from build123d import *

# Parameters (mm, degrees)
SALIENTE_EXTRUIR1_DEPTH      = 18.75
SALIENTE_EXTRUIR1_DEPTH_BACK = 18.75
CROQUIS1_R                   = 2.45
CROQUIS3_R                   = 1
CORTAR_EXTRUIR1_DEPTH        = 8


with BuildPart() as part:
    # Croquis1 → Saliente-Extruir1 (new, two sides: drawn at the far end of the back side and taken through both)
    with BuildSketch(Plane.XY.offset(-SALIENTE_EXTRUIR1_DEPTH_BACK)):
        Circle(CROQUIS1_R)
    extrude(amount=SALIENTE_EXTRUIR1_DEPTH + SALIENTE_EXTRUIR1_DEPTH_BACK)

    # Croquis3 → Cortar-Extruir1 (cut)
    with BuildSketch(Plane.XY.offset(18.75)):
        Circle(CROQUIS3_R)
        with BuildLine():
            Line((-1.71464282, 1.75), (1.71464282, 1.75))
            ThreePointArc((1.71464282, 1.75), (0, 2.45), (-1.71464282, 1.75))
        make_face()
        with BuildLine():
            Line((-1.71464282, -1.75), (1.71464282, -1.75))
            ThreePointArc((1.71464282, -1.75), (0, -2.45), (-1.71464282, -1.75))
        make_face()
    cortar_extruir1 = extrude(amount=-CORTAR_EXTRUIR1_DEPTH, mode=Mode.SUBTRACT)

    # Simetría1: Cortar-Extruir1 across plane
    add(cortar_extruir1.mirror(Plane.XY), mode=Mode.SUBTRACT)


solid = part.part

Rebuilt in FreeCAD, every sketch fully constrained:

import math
import FreeCAD as App
import Part
import Sketcher

V = App.Vector
Q = App.Units.Quantity

doc = App.newDocument("Part")
body = doc.addObject("PartDesign::Body", "Body")

# Sketch on XY plane
sketch1 = doc.addObject("Sketcher::SketchObject", "Sketch")
body.addObject(sketch1)
sketch1.AttachmentSupport = (doc.XY_Plane, [""])
sketch1.MapMode = "FlatFace"
sketch1.addGeometry(Part.Circle(V(0, 0, 0), V(0, 0, 1), 2.5), False)
sketch1.addConstraint(Sketcher.Constraint("Coincident", 0, 3, -1, 1))
sketch1.addConstraint(Sketcher.Constraint("Diameter", 0, Q("4.9 mm")))
pad1 = doc.addObject("PartDesign::Pad", "Pad")
body.addObject(pad1)
pad1.Profile = sketch1
pad1.Type = "TwoLengths"
pad1.Length = 18.75
pad1.Length2 = 18.75

# Sketch on XY plane
sketch2 = doc.addObject("Sketcher::SketchObject", "Sketch001")
body.addObject(sketch2)
sketch2.AttachmentSupport = (doc.XY_Plane, [""])
sketch2.MapMode = "FlatFace"
sketch2.AttachmentOffset = App.Placement(V(0, 0, 18.75), App.Rotation())
sketch2.addGeometry(Part.Circle(V(0, 0, 0), V(0, 0, 1), 1), False)
sketch2.addGeometry(Part.LineSegment(V(-1.7, 1.8, 0), V(1.7, 1.8, 0)), False)
sketch2.addGeometry(Part.ArcOfCircle(Part.Circle(V(0, 0, 0), V(0, 0, 1), 2.5), math.radians(46), math.radians(134)), False)
sketch2.addGeometry(Part.LineSegment(V(1.7, -1.8, 0), V(-1.7, -1.8, 0)), False)
sketch2.addGeometry(Part.ArcOfCircle(Part.Circle(V(0, 0, 0), V(0, 0, 1), 2.5), math.radians(-134), math.radians(-46)), False)
sketch2.addConstraint(Sketcher.Constraint("Coincident", 1, 1, 2, 2))
sketch2.addConstraint(Sketcher.Constraint("Coincident", 2, 1, 1, 2))
sketch2.addConstraint(Sketcher.Constraint("Coincident", 3, 1, 4, 2))
sketch2.addConstraint(Sketcher.Constraint("Coincident", 4, 1, 3, 2))
sketch2.addConstraint(Sketcher.Constraint("Horizontal", 1))
sketch2.addConstraint(Sketcher.Constraint("Horizontal", 3))
sketch2.addConstraint(Sketcher.Constraint("Coincident", 0, 3, -1, 1))
sketch2.addConstraint(Sketcher.Constraint("Coincident", 2, 3, -1, 1))
sketch2.addConstraint(Sketcher.Constraint("Coincident", 4, 3, -1, 1))
sketch2.addConstraint(Sketcher.Constraint("Equal", 2, 4))
sketch2.addConstraint(Sketcher.Constraint("Vertical", 2, 1, 3, 1))
sketch2.addConstraint(Sketcher.Constraint("Diameter", 0, Q("2 mm")))
sketch2.addConstraint(Sketcher.Constraint("Radius", 2, Q("2.45 mm")))
sketch2.addConstraint(Sketcher.Constraint("DistanceY", 3, 1, 2, 1, Q("3.5 mm")))
pocket1 = doc.addObject("PartDesign::Pocket", "Pocket")
body.addObject(pocket1)
pocket1.Profile = sketch2
pocket1.Length = 8
doc.recompute()

mirrored = doc.addObject("PartDesign::Mirrored", "Mirrored")
body.addObject(mirrored)
mirrored.Originals = [pocket1]
mirrored.MirrorPlane = (doc.XY_Plane, [""])
body.Tip = mirrored

doc.recompute()
